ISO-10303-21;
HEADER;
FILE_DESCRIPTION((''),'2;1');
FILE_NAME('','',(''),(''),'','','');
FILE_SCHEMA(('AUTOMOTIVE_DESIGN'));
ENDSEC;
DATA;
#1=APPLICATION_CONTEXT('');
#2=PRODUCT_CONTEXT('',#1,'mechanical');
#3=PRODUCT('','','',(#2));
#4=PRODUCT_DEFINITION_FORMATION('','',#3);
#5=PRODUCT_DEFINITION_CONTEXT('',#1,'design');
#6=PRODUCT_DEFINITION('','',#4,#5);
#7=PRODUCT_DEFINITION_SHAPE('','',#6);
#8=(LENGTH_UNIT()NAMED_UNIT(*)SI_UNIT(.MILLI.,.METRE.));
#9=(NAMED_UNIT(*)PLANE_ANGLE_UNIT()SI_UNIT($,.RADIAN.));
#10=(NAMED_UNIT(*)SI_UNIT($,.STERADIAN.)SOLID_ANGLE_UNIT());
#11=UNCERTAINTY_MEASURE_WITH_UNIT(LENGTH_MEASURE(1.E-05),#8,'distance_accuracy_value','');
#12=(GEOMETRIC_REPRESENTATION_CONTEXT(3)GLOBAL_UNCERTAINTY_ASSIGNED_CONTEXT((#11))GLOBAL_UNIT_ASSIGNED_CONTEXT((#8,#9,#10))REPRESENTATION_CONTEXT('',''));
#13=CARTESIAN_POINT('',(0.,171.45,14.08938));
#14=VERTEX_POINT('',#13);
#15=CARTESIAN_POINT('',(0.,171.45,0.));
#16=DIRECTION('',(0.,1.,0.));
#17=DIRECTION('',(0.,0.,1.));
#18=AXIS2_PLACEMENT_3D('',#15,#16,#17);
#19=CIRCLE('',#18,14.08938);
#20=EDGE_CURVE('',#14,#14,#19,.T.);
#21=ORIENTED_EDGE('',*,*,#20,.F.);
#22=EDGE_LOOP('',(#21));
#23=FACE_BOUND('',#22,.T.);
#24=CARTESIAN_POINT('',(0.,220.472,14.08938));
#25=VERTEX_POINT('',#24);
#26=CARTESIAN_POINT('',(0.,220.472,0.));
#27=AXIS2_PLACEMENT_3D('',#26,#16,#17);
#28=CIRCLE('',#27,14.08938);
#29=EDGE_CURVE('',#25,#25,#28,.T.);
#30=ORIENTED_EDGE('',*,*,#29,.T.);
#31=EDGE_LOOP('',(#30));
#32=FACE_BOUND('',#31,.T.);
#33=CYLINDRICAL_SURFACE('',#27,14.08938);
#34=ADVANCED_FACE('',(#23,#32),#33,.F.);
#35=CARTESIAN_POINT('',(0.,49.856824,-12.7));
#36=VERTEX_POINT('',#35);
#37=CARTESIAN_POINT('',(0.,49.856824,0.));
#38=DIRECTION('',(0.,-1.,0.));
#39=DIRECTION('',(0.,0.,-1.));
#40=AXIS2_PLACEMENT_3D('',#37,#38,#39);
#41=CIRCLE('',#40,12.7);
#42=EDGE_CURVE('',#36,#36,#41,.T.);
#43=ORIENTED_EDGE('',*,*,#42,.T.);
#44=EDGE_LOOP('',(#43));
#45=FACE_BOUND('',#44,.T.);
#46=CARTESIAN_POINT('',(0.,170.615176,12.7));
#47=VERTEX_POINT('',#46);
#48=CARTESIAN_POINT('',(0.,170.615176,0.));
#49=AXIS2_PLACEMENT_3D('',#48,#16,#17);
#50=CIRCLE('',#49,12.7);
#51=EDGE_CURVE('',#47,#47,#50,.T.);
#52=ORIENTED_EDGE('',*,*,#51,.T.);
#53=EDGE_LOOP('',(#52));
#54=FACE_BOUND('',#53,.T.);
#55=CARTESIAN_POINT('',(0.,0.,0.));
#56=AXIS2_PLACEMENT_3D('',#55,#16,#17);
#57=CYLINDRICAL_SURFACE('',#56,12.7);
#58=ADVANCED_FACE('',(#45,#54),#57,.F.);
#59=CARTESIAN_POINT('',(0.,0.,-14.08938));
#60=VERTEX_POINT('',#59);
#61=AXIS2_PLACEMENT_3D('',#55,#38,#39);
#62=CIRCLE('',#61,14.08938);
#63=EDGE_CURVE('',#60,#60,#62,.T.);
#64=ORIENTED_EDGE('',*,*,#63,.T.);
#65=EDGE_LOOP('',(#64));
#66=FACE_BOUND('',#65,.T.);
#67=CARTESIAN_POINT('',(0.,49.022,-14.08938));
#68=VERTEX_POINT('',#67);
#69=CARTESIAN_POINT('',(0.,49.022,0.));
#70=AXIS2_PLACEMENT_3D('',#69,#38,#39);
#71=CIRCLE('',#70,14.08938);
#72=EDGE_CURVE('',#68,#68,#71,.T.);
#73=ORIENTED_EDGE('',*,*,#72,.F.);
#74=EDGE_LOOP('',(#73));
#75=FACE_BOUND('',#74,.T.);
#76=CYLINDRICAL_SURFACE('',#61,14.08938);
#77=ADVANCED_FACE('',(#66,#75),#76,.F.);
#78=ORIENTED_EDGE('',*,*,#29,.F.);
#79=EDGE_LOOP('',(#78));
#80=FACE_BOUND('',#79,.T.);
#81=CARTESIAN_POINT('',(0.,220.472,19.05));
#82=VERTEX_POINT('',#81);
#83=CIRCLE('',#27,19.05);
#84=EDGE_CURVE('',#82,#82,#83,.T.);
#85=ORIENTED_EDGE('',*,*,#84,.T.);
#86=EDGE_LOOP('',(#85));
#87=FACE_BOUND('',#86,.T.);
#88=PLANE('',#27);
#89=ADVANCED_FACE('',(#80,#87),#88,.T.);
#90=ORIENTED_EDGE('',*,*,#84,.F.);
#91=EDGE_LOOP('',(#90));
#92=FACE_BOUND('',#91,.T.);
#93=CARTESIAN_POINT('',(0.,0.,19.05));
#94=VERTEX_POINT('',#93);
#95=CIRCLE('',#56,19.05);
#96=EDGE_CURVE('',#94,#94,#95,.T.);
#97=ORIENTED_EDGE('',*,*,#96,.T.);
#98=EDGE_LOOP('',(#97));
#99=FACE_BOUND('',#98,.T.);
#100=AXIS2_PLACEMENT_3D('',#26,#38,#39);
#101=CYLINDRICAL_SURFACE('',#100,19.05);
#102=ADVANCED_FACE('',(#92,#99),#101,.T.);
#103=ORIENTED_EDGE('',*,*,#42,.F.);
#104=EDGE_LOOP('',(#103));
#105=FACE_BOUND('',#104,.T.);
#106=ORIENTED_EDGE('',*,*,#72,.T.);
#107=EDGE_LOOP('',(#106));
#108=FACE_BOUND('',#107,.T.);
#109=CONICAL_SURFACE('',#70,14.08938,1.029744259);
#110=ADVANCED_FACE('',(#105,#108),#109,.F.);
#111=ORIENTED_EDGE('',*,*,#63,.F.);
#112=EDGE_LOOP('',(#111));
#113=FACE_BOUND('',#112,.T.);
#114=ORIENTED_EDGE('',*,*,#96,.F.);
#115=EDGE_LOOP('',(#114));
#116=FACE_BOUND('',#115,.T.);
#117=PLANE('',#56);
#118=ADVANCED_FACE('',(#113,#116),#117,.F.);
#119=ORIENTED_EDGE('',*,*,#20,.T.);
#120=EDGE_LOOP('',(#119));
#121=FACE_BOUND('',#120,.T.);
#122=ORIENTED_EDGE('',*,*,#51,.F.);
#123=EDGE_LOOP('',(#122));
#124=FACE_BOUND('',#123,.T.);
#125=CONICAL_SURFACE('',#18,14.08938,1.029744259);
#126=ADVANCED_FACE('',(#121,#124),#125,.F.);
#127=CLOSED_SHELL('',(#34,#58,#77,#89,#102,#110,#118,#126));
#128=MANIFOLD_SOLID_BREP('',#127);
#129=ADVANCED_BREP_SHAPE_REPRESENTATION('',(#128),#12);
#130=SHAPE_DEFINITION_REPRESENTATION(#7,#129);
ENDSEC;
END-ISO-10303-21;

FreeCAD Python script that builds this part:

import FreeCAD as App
import Part
import Sketcher
from FreeCAD import Vector
Q = App.Units.Quantity

doc = App.newDocument("Part")
body = doc.addObject("PartDesign::Body", "Body")

# Sketch on XZ plane
sketch1 = body.newObject("Sketcher::SketchObject", "Sketch")
sketch1.AttachmentSupport = (doc.getObject("XZ_Plane"), [""])
sketch1.MapMode = "FlatFace"
sketch1.addGeometry(Part.Circle(Vector(0, 0, 0), Vector(0, 0, 1), 19), False)
sketch1.addConstraint(Sketcher.Constraint("Coincident", 0, 3, -1, 1))
sketch1.addConstraint(Sketcher.Constraint("Diameter", 0, Q("1.5 in")))
pad1 = body.newObject("PartDesign::Pad", "Pad")
pad1.Profile = sketch1
pad1.Length = Q("8.68 in")
pad1.Reversed = True

# Sketch on XZ plane
sketch2 = body.newObject("Sketcher::SketchObject", "Sketch001")
sketch2.AttachmentSupport = (doc.getObject("XZ_Plane"), [""])
sketch2.MapMode = "FlatFace"
sketch2.AttachmentOffset = App.Placement(Vector(0, 0, -8.68 * 25.4), App.Rotation())
sketch2.addGeometry(Part.Circle(Vector(0, 0, 0), Vector(0, 0, 1), 13), False)
sketch2.addConstraint(Sketcher.Constraint("Coincident", 0, 3, -1, 1))
sketch2.addConstraint(Sketcher.Constraint("Diameter", 0, Q("1 in")))
pocket1 = body.newObject("PartDesign::Pocket", "Pocket")
pocket1.Profile = sketch2
pocket1.Type = "ThroughAll"
pocket1.Reversed = True

# Sketch on XZ plane
sketch3 = body.newObject("Sketcher::SketchObject", "Sketch002")
sketch3.AttachmentSupport = (doc.getObject("XZ_Plane"), [""])
sketch3.MapMode = "FlatFace"
sketch3.AttachmentOffset = App.Placement(Vector(0, 0, -8.68 * 25.4), App.Rotation())
sketch3.addGeometry(Part.Circle(Vector(0, 0, 0), Vector(0, 0, 1), 14), False)
sketch3.addConstraint(Sketcher.Constraint("Coincident", 0, 3, -1, 1))
sketch3.addConstraint(Sketcher.Constraint("Diameter", 0, Q("1.1094 in")))
doc.recompute()
hole = body.newObject("PartDesign::Hole", "Hole")
hole.Profile = sketch3
hole.ThreadType = "None"
hole.Diameter = Q("1.1094 in")
hole.DepthType = "Dimension"
hole.Depth = Q("1.93 in")
hole.DrillPoint = "Angled"
hole.DrillPointAngle = 118
hole.Reversed = True

# Sketch on XZ plane
sketch4 = body.newObject("Sketcher::SketchObject", "Sketch003")
sketch4.AttachmentSupport = (doc.getObject("XZ_Plane"), [""])
sketch4.MapMode = "FlatFace"
sketch4.addGeometry(Part.Circle(Vector(0, 0, 0), Vector(0, 0, 1), 14), False)
sketch4.addConstraint(Sketcher.Constraint("Coincident", 0, 3, -1, 1))
sketch4.addConstraint(Sketcher.Constraint("Diameter", 0, Q("1.1094 in")))
doc.recompute()
hole2 = body.newObject("PartDesign::Hole", "Hole001")
hole2.Profile = sketch4
hole2.ThreadType = "None"
hole2.Diameter = Q("1.1094 in")
hole2.DepthType = "Dimension"
hole2.Depth = Q("1.93 in")
hole2.DrillPoint = "Angled"
hole2.DrillPointAngle = 118

doc.recompute()
